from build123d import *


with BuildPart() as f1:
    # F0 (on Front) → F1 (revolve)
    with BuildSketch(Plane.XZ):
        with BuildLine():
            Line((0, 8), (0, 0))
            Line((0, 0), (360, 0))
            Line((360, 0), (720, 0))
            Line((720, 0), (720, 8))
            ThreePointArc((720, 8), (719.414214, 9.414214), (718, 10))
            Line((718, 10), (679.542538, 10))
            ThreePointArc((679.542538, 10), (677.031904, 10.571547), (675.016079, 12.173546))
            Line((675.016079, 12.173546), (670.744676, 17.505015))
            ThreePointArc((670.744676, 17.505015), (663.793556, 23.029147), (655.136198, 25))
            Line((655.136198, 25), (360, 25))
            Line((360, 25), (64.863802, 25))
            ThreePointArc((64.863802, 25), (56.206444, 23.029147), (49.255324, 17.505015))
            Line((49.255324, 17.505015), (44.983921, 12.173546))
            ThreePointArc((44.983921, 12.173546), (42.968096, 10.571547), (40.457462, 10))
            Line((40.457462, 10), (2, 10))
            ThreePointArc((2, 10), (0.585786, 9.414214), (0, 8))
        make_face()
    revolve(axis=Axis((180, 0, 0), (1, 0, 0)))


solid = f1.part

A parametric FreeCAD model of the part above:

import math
import FreeCAD as App
import Part
import Sketcher
from FreeCAD import Vector
Q = App.Units.Quantity

doc = App.newDocument("Part")
body = doc.addObject("PartDesign::Body", "Body")

sketch1 = body.newObject("Sketcher::SketchObject", "Sketch")
sketch1.AttachmentSupport = (doc.getObject("XZ_Plane"), [""])
sketch1.MapMode = "FlatFace"
sketch1.addGeometry(Part.LineSegment(Vector(0, 8, 0), Vector(0, 0, 0)), False)
sketch1.addGeometry(Part.LineSegment(Vector(0, 0, 0), Vector(720, 0, 0)), False)
sketch1.addGeometry(Part.LineSegment(Vector(720, 0, 0), Vector(720, 8, 0)), False)
sketch1.addGeometry(Part.ArcOfCircle(Part.Circle(Vector(718, 8, 0), Vector(0, 0, 1), 2), math.radians(0), math.radians(90)), False)
sketch1.addGeometry(Part.LineSegment(Vector(718, 10, 0), Vector(679.5, 10, 0)), False)
sketch1.addGeometry(Part.ArcOfCircle(Part.Circle(Vector(679.5, 15.8, 0), Vector(0, 0, 1), 5.8), math.radians(-141), math.radians(-90)), False)
sketch1.addGeometry(Part.LineSegment(Vector(675, 12.2, 0), Vector(670.7, 17.5, 0)), False)
sketch1.addGeometry(Part.ArcOfCircle(Part.Circle(Vector(655.1, 5, 0), Vector(0, 0, 1), 20), math.radians(39), math.radians(90)), False)
sketch1.addGeometry(Part.LineSegment(Vector(655.1, 25, 0), Vector(64.9, 25, 0)), False)
sketch1.addGeometry(Part.ArcOfCircle(Part.Circle(Vector(64.9, 5, 0), Vector(0, 0, 1), 20), math.radians(90), math.radians(141)), False)
sketch1.addGeometry(Part.LineSegment(Vector(49.3, 17.5, 0), Vector(45, 12.2, 0)), False)
sketch1.addGeometry(Part.ArcOfCircle(Part.Circle(Vector(40.5, 15.8, 0), Vector(0, 0, 1), 5.8), math.radians(-90), math.radians(-39)), False)
sketch1.addGeometry(Part.LineSegment(Vector(40.5, 10, 0), Vector(2, 10, 0)), False)
sketch1.addGeometry(Part.ArcOfCircle(Part.Circle(Vector(2, 8, 0), Vector(0, 0, 1), 2), math.radians(90), math.radians(180)), False)
sketch1.addConstraint(Sketcher.Constraint("Coincident", 0, 2, 1, 1))
sketch1.addConstraint(Sketcher.Constraint("Coincident", 1, 2, 2, 1))
sketch1.addConstraint(Sketcher.Constraint("Tangent", 2, 2, 3, 1))
sketch1.addConstraint(Sketcher.Constraint("Tangent", 3, 2, 4, 1))
sketch1.addConstraint(Sketcher.Constraint("Tangent", 4, 2, 5, 2))
sketch1.addConstraint(Sketcher.Constraint("Tangent", 5, 1, 6, 1))
sketch1.addConstraint(Sketcher.Constraint("Tangent", 6, 2, 7, 1))
sketch1.addConstraint(Sketcher.Constraint("Tangent", 7, 2, 8, 1))
sketch1.addConstraint(Sketcher.Constraint("Tangent", 8, 2, 9, 1))
sketch1.addConstraint(Sketcher.Constraint("Tangent", 9, 2, 10, 1))
sketch1.addConstraint(Sketcher.Constraint("Tangent", 10, 2, 11, 2))
sketch1.addConstraint(Sketcher.Constraint("Tangent", 11, 1, 12, 1))
sketch1.addConstraint(Sketcher.Constraint("Tangent", 12, 2, 13, 1))
sketch1.addConstraint(Sketcher.Constraint("Tangent", 13, 2, 0, 1))
sketch1.addConstraint(Sketcher.Constraint("Vertical", 0))
sketch1.addConstraint(Sketcher.Constraint("Horizontal", 1))
sketch1.addConstraint(Sketcher.Constraint("Vertical", 2))
sketch1.addConstraint(Sketcher.Constraint("Horizontal", 4))
sketch1.addConstraint(Sketcher.Constraint("Horizontal", 8))
sketch1.addConstraint(Sketcher.Constraint("Horizontal", 12))
sketch1.addConstraint(Sketcher.Constraint("Coincident", 0, 2, -1, 1))
sketch1.addConstraint(Sketcher.Constraint("Equal", 7, 9))
sketch1.addConstraint(Sketcher.Constraint("Equal", 5, 11))
sketch1.addConstraint(Sketcher.Constraint("Equal", 3, 13))
sketch1.addConstraint(Sketcher.Constraint("Horizontal", 5, 3, 11, 3))
sketch1.addConstraint(Sketcher.Constraint("Horizontal", 6, 2, 9, 2))
sketch1.addConstraint(Sketcher.Constraint("Equal", 4, 12))
sketch1.addConstraint(Sketcher.Constraint("Radius", 3, Q("1.999999 mm")))
sketch1.addConstraint(Sketcher.Constraint("Radius", 7, Q("20.000001 mm")))
sketch1.addConstraint(Sketcher.Constraint("DistanceX", 1, 1, 1, 2, Q("720 mm")))
sketch1.addConstraint(Sketcher.Constraint("DistanceY", 0, 2, 0, 1, Q("8 mm")))
sketch1.addConstraint(Sketcher.Constraint("DistanceY", -1, 1, 7, 3, Q("4.999999 mm")))
sketch1.addConstraint(Sketcher.Constraint("Radius", 5, Q("5.799997 mm")))
sketch1.addConstraint(Sketcher.Constraint("DistanceX", 4, 2, 4, 1, Q("38.457462 mm")))
sketch1.addConstraint(Sketcher.Constraint("DistanceX", -1, 1, 7, 2, Q("655.136198 mm")))
revolution = body.newObject("PartDesign::Revolution", "Revolution")
revolution.Profile = sketch1
revolution.ReferenceAxis = (sketch1, ["H_Axis"])
revolution.Angle = 360

doc.recompute()
